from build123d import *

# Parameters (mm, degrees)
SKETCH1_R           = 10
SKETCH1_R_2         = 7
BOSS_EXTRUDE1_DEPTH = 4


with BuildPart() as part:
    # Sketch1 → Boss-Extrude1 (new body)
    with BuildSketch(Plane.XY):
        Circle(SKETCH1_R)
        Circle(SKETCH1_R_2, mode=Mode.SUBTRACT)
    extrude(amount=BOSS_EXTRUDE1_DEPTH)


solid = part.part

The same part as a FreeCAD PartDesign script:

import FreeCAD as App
import Part
import Sketcher

V = App.Vector

doc = App.newDocument("Part")
body = doc.addObject("PartDesign::Body", "Body")

sketch1 = body.newObject("Sketcher::SketchObject", "Sketch")
sketch1.AttachmentSupport = (doc.getObject("XY_Plane"), [""])
sketch1.MapMode = "FlatFace"
sketch1.addGeometry(Part.Circle(V(0, 0, 0), V(0, 0, 1), 10), False)
sketch1.addGeometry(Part.Circle(V(0, 0, 0), V(0, 0, 1), 7), False)
sketch1.addConstraint(Sketcher.Constraint("Coincident", 0, 3, -1, 1))
sketch1.addConstraint(Sketcher.Constraint("Coincident", 1, 3, -1, 1))
sketch1.addConstraint(Sketcher.Constraint("Diameter", 0, 20.0))
sketch1.addConstraint(Sketcher.Constraint("Diameter", 1, 14.0))
pad1 = body.newObject("PartDesign::Pad", "Pad")
pad1.Profile = sketch1
pad1.Length = 4

doc.recompute()
